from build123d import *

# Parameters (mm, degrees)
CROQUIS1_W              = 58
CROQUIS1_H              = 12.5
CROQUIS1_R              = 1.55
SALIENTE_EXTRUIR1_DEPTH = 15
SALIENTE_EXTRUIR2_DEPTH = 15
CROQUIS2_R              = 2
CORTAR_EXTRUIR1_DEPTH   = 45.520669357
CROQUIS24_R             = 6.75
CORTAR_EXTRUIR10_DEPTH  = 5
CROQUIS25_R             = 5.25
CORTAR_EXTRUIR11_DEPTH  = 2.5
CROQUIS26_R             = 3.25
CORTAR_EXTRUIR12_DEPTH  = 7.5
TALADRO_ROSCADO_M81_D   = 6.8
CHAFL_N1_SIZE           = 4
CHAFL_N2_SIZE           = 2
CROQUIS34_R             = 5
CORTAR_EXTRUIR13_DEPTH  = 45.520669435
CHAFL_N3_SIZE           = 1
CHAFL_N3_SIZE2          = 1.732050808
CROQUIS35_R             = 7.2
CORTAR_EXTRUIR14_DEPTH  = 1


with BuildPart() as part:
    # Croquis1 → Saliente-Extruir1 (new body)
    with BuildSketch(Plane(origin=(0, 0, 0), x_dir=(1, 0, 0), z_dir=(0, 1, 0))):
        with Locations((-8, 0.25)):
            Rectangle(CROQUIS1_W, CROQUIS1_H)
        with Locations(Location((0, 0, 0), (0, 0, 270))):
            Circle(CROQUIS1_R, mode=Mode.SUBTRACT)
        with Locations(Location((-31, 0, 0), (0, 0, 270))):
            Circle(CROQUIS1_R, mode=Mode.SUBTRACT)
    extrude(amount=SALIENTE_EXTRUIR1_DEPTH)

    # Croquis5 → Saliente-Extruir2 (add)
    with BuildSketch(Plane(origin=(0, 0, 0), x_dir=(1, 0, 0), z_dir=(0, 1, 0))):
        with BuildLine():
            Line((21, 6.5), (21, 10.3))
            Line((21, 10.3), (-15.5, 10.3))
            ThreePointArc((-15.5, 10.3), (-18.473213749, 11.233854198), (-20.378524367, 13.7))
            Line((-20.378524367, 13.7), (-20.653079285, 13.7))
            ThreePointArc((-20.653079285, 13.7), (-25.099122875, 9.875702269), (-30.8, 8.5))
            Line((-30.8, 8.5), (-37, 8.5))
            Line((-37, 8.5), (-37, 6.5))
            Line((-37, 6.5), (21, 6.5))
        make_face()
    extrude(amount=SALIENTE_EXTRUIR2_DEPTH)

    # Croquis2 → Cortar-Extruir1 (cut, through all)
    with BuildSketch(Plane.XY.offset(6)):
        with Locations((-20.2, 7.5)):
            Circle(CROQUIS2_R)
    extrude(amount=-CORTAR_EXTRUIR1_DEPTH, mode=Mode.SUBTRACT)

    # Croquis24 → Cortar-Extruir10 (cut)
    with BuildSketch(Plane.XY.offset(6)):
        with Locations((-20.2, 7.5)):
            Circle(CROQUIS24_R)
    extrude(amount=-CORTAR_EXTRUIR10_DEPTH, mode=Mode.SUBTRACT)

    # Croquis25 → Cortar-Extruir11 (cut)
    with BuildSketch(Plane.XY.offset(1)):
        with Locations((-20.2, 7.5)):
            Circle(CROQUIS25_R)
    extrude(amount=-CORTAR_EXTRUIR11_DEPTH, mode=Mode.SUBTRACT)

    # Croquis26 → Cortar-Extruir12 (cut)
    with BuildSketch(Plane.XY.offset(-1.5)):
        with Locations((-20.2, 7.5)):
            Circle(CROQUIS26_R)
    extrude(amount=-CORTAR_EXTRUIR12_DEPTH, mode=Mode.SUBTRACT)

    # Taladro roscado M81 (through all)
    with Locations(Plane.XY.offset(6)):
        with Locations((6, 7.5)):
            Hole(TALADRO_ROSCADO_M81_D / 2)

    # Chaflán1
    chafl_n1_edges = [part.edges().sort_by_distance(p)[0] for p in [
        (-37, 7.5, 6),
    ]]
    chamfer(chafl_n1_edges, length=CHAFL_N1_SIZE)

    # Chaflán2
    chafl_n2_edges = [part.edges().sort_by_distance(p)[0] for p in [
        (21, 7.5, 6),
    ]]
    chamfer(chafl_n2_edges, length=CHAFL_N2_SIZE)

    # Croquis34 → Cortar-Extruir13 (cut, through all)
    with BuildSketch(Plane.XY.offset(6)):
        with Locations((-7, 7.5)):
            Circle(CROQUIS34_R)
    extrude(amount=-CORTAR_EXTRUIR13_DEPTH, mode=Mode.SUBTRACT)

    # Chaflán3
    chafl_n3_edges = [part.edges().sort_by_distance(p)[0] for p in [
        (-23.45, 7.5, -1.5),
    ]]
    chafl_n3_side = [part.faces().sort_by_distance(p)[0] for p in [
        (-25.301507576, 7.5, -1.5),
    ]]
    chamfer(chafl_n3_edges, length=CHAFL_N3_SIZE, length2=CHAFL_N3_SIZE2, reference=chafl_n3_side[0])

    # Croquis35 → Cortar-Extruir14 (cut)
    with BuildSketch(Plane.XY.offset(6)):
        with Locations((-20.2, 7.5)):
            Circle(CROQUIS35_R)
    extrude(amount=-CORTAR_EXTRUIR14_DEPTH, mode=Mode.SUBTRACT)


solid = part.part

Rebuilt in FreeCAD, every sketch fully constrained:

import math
import FreeCAD as App
import Part
import Sketcher

V = App.Vector
Q = App.Units.Quantity


def edges_at(feature, points):
    """Names of the edges that pass closest to the given points."""
    edges = feature.Shape.Edges
    near = lambda p: min(range(len(edges)), key=lambda i: edges[i].distToShape(Part.Vertex(*p))[0])
    return sorted({f"Edge{near(p) + 1}" for p in points})

doc = App.newDocument("Part")
params = doc.addObject("Spreadsheet::Sheet", "Params")
for row, (alias, value) in enumerate([
    ("sketch1_diameter", "3.1 mm"),
    ("sketch1_width", "58 mm"),
    ("sketch1_height", "12.5 mm"),
    ("pad1_length", "15 mm"),
    ("sketch2_radius", "5.2 mm"),
    ("sketch2_radius2", "12.5 mm"),
    ("sketch2_width", "58 mm"),
    ("sketch2_height", "2 mm"),
    ("sketch2_width2", "36.5 mm"),
    ("pad2_length", "15 mm"),
    ("sketch3_diameter", "4 mm"),
    ("sketch4_diameter", "13.5 mm"),
    ("pocket2_length", "5 mm"),
    ("sketch5_diameter", "10.5 mm"),
    ("pocket3_length", "2.5 mm"),
    ("sketch6_diameter", "6.5 mm"),
    ("pocket4_length", "7.5 mm"),
    ("sketch7_diameter", "6.8 mm"),
    ("hole_diameter", "6.8 mm"),
    ("chamfer_size", "4 mm"),
    ("chamfer2_size", "2 mm"),
    ("sketch8_diameter", "10 mm"),
    ("chamfer3_size", "1 mm"),
    ("chamfer3_size2", "1.732051 mm"),
    ("sketch9_diameter", "14.4 mm"),
    ("pocket6_length", "1 mm"),
], start=1):
    params.set(f"A{row}", alias)
    params.set(f"B{row}", "=" + value)
    params.setAlias(f"B{row}", alias)

body = doc.addObject("PartDesign::Body", "Body")

# Sketch on XZ plane
sketch1 = doc.addObject("Sketcher::SketchObject", "Sketch")
body.addObject(sketch1)
sketch1.AttachmentSupport = (doc.XZ_Plane, [""])
sketch1.MapMode = "FlatFace"
sketch1.addGeometry([
    Part.LineSegment(V(-37, -6.5, 0), V(-37, 6, 0)),  # 0
    Part.LineSegment(V(-37, 6, 0), V(21, 6, 0)),  # 1
    Part.LineSegment(V(21, 6, 0), V(21, -6.5, 0)),  # 2
    Part.LineSegment(V(21, -6.5, 0), V(-37, -6.5, 0)),  # 3
    Part.Circle(V(-31, 0, 0), V(0, 0, 1), 1.6),  # 4
    Part.Circle(V(0, 0, 0), V(0, 0, 1), 1.6),  # 5
], False)
sketch1.addConstraint([
    Sketcher.Constraint("Coincident", 0, 2, 1, 1),
    Sketcher.Constraint("Coincident", 1, 2, 2, 1),
    Sketcher.Constraint("Coincident", 2, 2, 3, 1),
    Sketcher.Constraint("Coincident", 3, 2, 0, 1),
    Sketcher.Constraint("Vertical", 0),
    Sketcher.Constraint("Horizontal", 1),
    Sketcher.Constraint("Vertical", 2),
    Sketcher.Constraint("Horizontal", 3),
    Sketcher.Constraint("Coincident", 5, 3, -1, 1),
    Sketcher.Constraint("Equal", 4, 5),
    Sketcher.Constraint("PointOnObject", 4, 3, -1),
    Sketcher.Constraint("Diameter", 4, Q("3.1 mm")),
    Sketcher.Constraint("DistanceX", 1, 1, 1, 2, Q("58 mm")),
    Sketcher.Constraint("DistanceY", 0, 1, 0, 2, Q("12.5 mm")),
    Sketcher.Constraint("DistanceX", 4, 3, -1, 1, Q("31 mm")),
    Sketcher.Constraint("DistanceX", 0, 2, -1, 1, Q("37 mm")),
    Sketcher.Constraint("DistanceY", -1, 1, 0, 2, Q("6 mm")),
])
sketch1.setExpression("Constraints[11]", "Params.sketch1_diameter")
sketch1.setExpression("Constraints[12]", "Params.sketch1_width")
sketch1.setExpression("Constraints[13]", "Params.sketch1_height")
pad1 = doc.addObject("PartDesign::Pad", "Pad")
body.addObject(pad1)
pad1.Profile = sketch1
pad1.setExpression("Length", "Params.pad1_length")
pad1.Reversed = True

# Sketch on XZ plane
sketch2 = doc.addObject("Sketcher::SketchObject", "Sketch001")
body.addObject(sketch2)
sketch2.AttachmentSupport = (doc.XZ_Plane, [""])
sketch2.MapMode = "FlatFace"
sketch2.addGeometry([
    Part.LineSegment(V(21, -6.5, 0), V(21, -10.3, 0)),  # 0
    Part.LineSegment(V(21, -10.3, 0), V(-15.5, -10.3, 0)),  # 1
    Part.ArcOfCircle(Part.Circle(V(-15.5, -15.5, 0), V(0, 0, 1), 5.2), math.radians(90), math.radians(160)),  # 2
    Part.LineSegment(V(-20.38, -13.7, 0), V(-20.65, -13.7, 0)),  # 3
    Part.ArcOfCircle(Part.Circle(V(-30.8, -21, 0), V(0, 0, 1), 12.5), math.radians(36), math.radians(90)),  # 4
    Part.LineSegment(V(-30.8, -8.5, 0), V(-37, -8.5, 0)),  # 5
    Part.LineSegment(V(-37, -8.5, 0), V(-37, -6.5, 0)),  # 6
    Part.LineSegment(V(-37, -6.5, 0), V(21, -6.5, 0)),  # 7
], False)
sketch2.addConstraint([
    Sketcher.Constraint("Coincident", 0, 2, 1, 1),
    Sketcher.Constraint("Tangent", 1, 2, 2, 1),
    Sketcher.Constraint("Coincident", 2, 2, 3, 1),
    Sketcher.Constraint("Coincident", 3, 2, 4, 1),
    Sketcher.Constraint("Tangent", 4, 2, 5, 1),
    Sketcher.Constraint("Coincident", 5, 2, 6, 1),
    Sketcher.Constraint("Coincident", 6, 2, 7, 1),
    Sketcher.Constraint("Coincident", 7, 2, 0, 1),
    Sketcher.Constraint("Vertical", 0),
    Sketcher.Constraint("Horizontal", 1),
    Sketcher.Constraint("Horizontal", 3),
    Sketcher.Constraint("Horizontal", 5),
    Sketcher.Constraint("Vertical", 6),
    Sketcher.Constraint("Horizontal", 7),
    Sketcher.Constraint("Radius", 2, Q("5.2 mm")),
    Sketcher.Constraint("Radius", 4, Q("12.5 mm")),
    Sketcher.Constraint("DistanceX", 7, 1, 7, 2, Q("58 mm")),
    Sketcher.Constraint("DistanceY", 6, 1, 6, 2, Q("2 mm")),
    Sketcher.Constraint("DistanceX", 1, 2, 1, 1, Q("36.5 mm")),
    Sketcher.Constraint("DistanceX", 5, 2, 5, 1, Q("6.2 mm")),
    Sketcher.Constraint("DistanceY", 0, 2, 0, 1, Q("3.8 mm")),
    Sketcher.Constraint("DistanceY", 4, 3, -1, 1, Q("21 mm")),
    Sketcher.Constraint("DistanceX", -1, 1, 0, 2, Q("21 mm")),
    Sketcher.Constraint("DistanceY", 2, 2, -1, 1, Q("13.7 mm")),
])
sketch2.setExpression("Constraints[14]", "Params.sketch2_radius")
sketch2.setExpression("Constraints[15]", "Params.sketch2_radius2")
sketch2.setExpression("Constraints[16]", "Params.sketch2_width")
sketch2.setExpression("Constraints[17]", "Params.sketch2_height")
sketch2.setExpression("Constraints[18]", "Params.sketch2_width2")
pad2 = doc.addObject("PartDesign::Pad", "Pad001")
body.addObject(pad2)
pad2.Profile = sketch2
pad2.setExpression("Length", "Params.pad2_length")
pad2.Reversed = True

# Sketch on XY plane
sketch3 = doc.addObject("Sketcher::SketchObject", "Sketch002")
body.addObject(sketch3)
sketch3.AttachmentSupport = (doc.XY_Plane, [""])
sketch3.MapMode = "FlatFace"
sketch3.AttachmentOffset = App.Placement(V(0, 0, 6), App.Rotation())
sketch3.addGeometry(Part.Circle(V(-20.2, 7.5, 0), V(0, 0, 1), 2), False)
sketch3.addConstraint([
    Sketcher.Constraint("Diameter", 0, Q("4 mm")),
    Sketcher.Constraint("DistanceX", 0, 3, -1, 1, Q("20.2 mm")),
    Sketcher.Constraint("DistanceY", -1, 1, 0, 3, Q("7.5 mm")),
])
sketch3.setExpression("Constraints[0]", "Params.sketch3_diameter")
pocket1 = doc.addObject("PartDesign::Pocket", "Pocket")
body.addObject(pocket1)
pocket1.Profile = sketch3
pocket1.Type = "ThroughAll"

# Sketch on XY plane
sketch4 = doc.addObject("Sketcher::SketchObject", "Sketch003")
body.addObject(sketch4)
sketch4.AttachmentSupport = (doc.XY_Plane, [""])
sketch4.MapMode = "FlatFace"
sketch4.AttachmentOffset = App.Placement(V(0, 0, 6), App.Rotation())
sketch4.addGeometry(Part.Circle(V(-20, 8, 0), V(0, 0, 1), 7), False)
sketch4.addConstraint([
    Sketcher.Constraint("Diameter", 0, Q("13.5 mm")),
    Sketcher.Constraint("DistanceX", 0, 3, -1, 1, Q("20.2 mm")),
    Sketcher.Constraint("DistanceY", -1, 1, 0, 3, Q("7.5 mm")),
])
sketch4.setExpression("Constraints[0]", "Params.sketch4_diameter")
pocket2 = doc.addObject("PartDesign::Pocket", "Pocket001")
body.addObject(pocket2)
pocket2.Profile = sketch4
pocket2.setExpression("Length", "Params.pocket2_length")

# Sketch on XY plane
sketch5 = doc.addObject("Sketcher::SketchObject", "Sketch004")
body.addObject(sketch5)
sketch5.AttachmentSupport = (doc.XY_Plane, [""])
sketch5.MapMode = "FlatFace"
sketch5.AttachmentOffset = App.Placement(V(0, 0, 1), App.Rotation())
sketch5.addGeometry(Part.Circle(V(-20, 8, 0), V(0, 0, 1), 5), False)
sketch5.addConstraint([
    Sketcher.Constraint("Diameter", 0, Q("10.5 mm")),
    Sketcher.Constraint("DistanceX", 0, 3, -1, 1, Q("20.2 mm")),
    Sketcher.Constraint("DistanceY", -1, 1, 0, 3, Q("7.5 mm")),
])
sketch5.setExpression("Constraints[0]", "Params.sketch5_diameter")
pocket3 = doc.addObject("PartDesign::Pocket", "Pocket002")
body.addObject(pocket3)
pocket3.Profile = sketch5
pocket3.setExpression("Length", "Params.pocket3_length")

# Sketch on XY plane
sketch6 = doc.addObject("Sketcher::SketchObject", "Sketch005")
body.addObject(sketch6)
sketch6.AttachmentSupport = (doc.XY_Plane, [""])
sketch6.MapMode = "FlatFace"
sketch6.AttachmentOffset = App.Placement(V(0, 0, -1.5), App.Rotation())
sketch6.addGeometry(Part.Circle(V(-20.2, 7.5, 0), V(0, 0, 1), 3.2), False)
sketch6.addConstraint([
    Sketcher.Constraint("Diameter", 0, Q("6.5 mm")),
    Sketcher.Constraint("DistanceX", 0, 3, -1, 1, Q("20.2 mm")),
    Sketcher.Constraint("DistanceY", -1, 1, 0, 3, Q("7.5 mm")),
])
sketch6.setExpression("Constraints[0]", "Params.sketch6_diameter")
pocket4 = doc.addObject("PartDesign::Pocket", "Pocket003")
body.addObject(pocket4)
pocket4.Profile = sketch6
pocket4.setExpression("Length", "Params.pocket4_length")

# Sketch on XY plane
sketch7 = doc.addObject("Sketcher::SketchObject", "Sketch006")
body.addObject(sketch7)
sketch7.AttachmentSupport = (doc.XY_Plane, [""])
sketch7.MapMode = "FlatFace"
sketch7.AttachmentOffset = App.Placement(V(0, 0, 6), App.Rotation())
sketch7.addGeometry(Part.Circle(V(6, 7.5, 0), V(0, 0, 1), 3.4), False)
sketch7.addConstraint([
    Sketcher.Constraint("Diameter", 0, Q("6.8 mm")),
    Sketcher.Constraint("DistanceX", -1, 1, 0, 3, Q("6 mm")),
    Sketcher.Constraint("DistanceY", -1, 1, 0, 3, Q("7.5 mm")),
])
sketch7.setExpression("Constraints[0]", "Params.sketch7_diameter")
doc.recompute()
hole = doc.addObject("PartDesign::Hole", "Hole")
body.addObject(hole)
hole.Profile = sketch7
hole.ThreadType = "None"
hole.setExpression("Diameter", "Params.hole_diameter")
hole.DepthType = "ThroughAll"
doc.recompute()

chamfer = doc.addObject("PartDesign::Chamfer", "Chamfer")
body.addObject(chamfer)
chamfer.Base = (hole, edges_at(hole, [(-37, 7.5, 6)]))
chamfer.setExpression("Size", "Params.chamfer_size")
doc.recompute()

chamfer2 = doc.addObject("PartDesign::Chamfer", "Chamfer001")
body.addObject(chamfer2)
chamfer2.Base = (chamfer, edges_at(chamfer, [(21, 7.5, 6)]))
chamfer2.setExpression("Size", "Params.chamfer2_size")

# Sketch on XY plane
sketch8 = doc.addObject("Sketcher::SketchObject", "Sketch007")
body.addObject(sketch8)
sketch8.AttachmentSupport = (doc.XY_Plane, [""])
sketch8.MapMode = "FlatFace"
sketch8.AttachmentOffset = App.Placement(V(0, 0, 6), App.Rotation())
sketch8.addGeometry(Part.Circle(V(-7, 8, 0), V(0, 0, 1), 5), False)
sketch8.addConstraint([
    Sketcher.Constraint("Diameter", 0, Q("10 mm")),
    Sketcher.Constraint("DistanceX", 0, 3, -1, 1, Q("7 mm")),
    Sketcher.Constraint("DistanceY", -1, 1, 0, 3, Q("7.5 mm")),
])
sketch8.setExpression("Constraints[0]", "Params.sketch8_diameter")
pocket5 = doc.addObject("PartDesign::Pocket", "Pocket004")
body.addObject(pocket5)
pocket5.Profile = sketch8
pocket5.Type = "ThroughAll"
doc.recompute()

chamfer3 = doc.addObject("PartDesign::Chamfer", "Chamfer002")
body.addObject(chamfer3)
chamfer3.Base = (pocket5, edges_at(pocket5, [(-23.45, 7.5, -1.5)]))
chamfer3.ChamferType = "Two distances"
chamfer3.setExpression("Size", "Params.chamfer3_size")
chamfer3.setExpression("Size2", "Params.chamfer3_size2")

# Sketch on XY plane
sketch9 = doc.addObject("Sketcher::SketchObject", "Sketch008")
body.addObject(sketch9)
sketch9.AttachmentSupport = (doc.XY_Plane, [""])
sketch9.MapMode = "FlatFace"
sketch9.AttachmentOffset = App.Placement(V(0, 0, 6), App.Rotation())
sketch9.addGeometry(Part.Circle(V(-20, 8, 0), V(0, 0, 1), 7), False)
sketch9.addConstraint([
    Sketcher.Constraint("Diameter", 0, Q("14.4 mm")),
    Sketcher.Constraint("DistanceX", 0, 3, -1, 1, Q("20.2 mm")),
    Sketcher.Constraint("DistanceY", -1, 1, 0, 3, Q("7.5 mm")),
])
sketch9.setExpression("Constraints[0]", "Params.sketch9_diameter")
pocket6 = doc.addObject("PartDesign::Pocket", "Pocket005")
body.addObject(pocket6)
pocket6.Profile = sketch9
pocket6.setExpression("Length", "Params.pocket6_length")

doc.recompute()
